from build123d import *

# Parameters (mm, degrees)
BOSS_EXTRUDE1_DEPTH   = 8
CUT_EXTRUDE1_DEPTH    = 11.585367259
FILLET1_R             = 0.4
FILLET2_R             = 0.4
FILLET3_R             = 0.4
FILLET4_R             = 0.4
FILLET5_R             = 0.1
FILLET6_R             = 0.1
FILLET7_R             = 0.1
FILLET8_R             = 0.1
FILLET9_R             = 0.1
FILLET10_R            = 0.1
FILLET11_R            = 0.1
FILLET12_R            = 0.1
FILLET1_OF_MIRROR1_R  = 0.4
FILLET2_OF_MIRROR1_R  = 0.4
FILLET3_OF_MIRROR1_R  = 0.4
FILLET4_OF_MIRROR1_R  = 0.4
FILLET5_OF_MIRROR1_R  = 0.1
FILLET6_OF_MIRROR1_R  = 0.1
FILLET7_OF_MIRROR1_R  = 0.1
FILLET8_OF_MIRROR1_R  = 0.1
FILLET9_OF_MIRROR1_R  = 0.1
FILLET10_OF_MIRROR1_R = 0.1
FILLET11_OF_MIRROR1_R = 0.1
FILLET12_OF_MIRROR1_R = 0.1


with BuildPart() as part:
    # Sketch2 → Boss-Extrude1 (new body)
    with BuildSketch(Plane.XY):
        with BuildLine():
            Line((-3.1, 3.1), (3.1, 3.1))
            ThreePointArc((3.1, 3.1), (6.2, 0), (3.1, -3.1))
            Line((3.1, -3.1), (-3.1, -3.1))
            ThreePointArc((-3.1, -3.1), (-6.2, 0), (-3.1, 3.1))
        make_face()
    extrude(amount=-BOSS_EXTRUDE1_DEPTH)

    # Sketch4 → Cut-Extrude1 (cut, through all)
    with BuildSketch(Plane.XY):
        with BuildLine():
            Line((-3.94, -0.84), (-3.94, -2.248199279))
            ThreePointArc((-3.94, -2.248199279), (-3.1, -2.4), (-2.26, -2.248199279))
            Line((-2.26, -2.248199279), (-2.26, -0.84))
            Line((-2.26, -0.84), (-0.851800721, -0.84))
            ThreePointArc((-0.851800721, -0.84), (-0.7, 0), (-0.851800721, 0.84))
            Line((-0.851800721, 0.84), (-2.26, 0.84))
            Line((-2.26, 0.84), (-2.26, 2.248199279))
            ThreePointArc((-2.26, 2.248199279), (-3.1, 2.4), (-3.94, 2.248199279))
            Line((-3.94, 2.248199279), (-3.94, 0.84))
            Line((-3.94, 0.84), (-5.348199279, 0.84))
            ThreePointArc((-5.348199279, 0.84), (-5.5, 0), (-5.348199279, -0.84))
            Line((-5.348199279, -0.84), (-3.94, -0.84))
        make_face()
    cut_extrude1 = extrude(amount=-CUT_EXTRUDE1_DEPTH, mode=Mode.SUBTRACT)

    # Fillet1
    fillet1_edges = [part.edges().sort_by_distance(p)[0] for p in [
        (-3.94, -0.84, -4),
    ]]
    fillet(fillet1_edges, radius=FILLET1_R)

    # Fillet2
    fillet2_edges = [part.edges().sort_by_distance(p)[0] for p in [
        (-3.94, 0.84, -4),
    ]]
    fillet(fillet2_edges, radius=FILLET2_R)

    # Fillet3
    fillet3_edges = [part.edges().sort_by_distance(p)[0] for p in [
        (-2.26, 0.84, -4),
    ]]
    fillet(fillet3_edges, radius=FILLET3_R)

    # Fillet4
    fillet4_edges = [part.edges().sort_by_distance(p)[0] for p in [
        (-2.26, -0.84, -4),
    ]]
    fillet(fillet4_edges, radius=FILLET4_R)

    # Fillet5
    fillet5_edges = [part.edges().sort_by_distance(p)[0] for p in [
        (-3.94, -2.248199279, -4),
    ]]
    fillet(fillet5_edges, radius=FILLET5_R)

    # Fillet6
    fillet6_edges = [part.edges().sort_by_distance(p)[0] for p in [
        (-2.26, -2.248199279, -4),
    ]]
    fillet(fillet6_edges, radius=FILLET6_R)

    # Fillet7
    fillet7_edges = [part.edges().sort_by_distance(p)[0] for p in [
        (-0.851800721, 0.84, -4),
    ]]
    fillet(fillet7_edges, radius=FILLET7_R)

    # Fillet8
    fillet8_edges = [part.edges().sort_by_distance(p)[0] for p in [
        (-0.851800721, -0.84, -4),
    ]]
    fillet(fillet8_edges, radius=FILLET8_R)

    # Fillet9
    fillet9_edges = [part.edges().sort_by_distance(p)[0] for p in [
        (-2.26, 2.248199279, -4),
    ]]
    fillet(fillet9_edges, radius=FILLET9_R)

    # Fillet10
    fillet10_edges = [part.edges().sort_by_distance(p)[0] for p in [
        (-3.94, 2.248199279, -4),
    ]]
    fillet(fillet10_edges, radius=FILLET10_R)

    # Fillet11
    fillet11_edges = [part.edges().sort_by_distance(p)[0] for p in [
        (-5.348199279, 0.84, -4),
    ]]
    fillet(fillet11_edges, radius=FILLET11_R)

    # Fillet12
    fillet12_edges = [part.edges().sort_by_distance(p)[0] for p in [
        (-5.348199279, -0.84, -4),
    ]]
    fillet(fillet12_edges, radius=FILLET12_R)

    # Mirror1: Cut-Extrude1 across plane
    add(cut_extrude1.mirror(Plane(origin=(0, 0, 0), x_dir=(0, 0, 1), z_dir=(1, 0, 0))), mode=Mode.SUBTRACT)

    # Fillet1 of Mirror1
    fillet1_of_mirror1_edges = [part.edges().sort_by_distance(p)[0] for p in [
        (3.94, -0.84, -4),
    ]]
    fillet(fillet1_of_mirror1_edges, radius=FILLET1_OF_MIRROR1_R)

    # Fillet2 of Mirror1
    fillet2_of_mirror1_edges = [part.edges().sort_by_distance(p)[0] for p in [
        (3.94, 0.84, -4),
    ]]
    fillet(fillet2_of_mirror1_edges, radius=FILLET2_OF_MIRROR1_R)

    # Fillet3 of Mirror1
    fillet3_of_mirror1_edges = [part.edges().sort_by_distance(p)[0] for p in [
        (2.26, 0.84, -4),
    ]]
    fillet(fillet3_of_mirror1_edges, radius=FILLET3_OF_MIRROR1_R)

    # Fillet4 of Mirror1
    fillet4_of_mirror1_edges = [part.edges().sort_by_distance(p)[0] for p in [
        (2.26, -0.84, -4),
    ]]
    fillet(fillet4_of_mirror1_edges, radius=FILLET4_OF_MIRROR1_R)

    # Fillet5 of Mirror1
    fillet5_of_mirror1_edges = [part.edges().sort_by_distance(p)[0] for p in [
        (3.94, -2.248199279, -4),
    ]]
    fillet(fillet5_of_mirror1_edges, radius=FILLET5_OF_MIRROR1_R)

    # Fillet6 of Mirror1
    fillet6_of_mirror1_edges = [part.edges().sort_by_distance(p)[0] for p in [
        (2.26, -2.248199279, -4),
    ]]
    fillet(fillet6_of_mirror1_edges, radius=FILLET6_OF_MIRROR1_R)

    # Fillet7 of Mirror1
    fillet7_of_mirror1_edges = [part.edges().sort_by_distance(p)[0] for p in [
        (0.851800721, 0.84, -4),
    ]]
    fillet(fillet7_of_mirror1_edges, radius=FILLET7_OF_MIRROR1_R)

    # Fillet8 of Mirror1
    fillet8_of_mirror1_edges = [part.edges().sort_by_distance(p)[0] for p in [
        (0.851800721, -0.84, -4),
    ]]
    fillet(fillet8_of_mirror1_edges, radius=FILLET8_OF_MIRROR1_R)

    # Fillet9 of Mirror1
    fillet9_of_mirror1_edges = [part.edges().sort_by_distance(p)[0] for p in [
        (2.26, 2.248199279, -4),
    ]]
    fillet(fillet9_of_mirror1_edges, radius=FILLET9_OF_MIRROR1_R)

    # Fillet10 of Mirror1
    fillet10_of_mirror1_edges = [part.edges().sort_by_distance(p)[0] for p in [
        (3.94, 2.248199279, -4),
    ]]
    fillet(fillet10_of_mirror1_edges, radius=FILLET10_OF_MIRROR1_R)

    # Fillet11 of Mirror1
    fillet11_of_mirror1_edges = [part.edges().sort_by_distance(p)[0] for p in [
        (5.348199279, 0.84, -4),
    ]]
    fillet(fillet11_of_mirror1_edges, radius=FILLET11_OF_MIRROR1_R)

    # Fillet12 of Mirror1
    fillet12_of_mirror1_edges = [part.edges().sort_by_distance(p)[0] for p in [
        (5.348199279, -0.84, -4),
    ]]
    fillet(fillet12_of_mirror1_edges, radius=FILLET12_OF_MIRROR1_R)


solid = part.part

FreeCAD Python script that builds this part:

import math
import FreeCAD as App
import Part
import Sketcher


def edges_at(feature, points):
    """Names of the edges that pass closest to the given points."""
    edges = feature.Shape.Edges
    near = lambda p: min(range(len(edges)), key=lambda i: edges[i].distToShape(Part.Vertex(*p))[0])
    return sorted({f"Edge{near(p) + 1}" for p in points})

doc = App.newDocument("Part")
body = doc.addObject("PartDesign::Body", "Body")

# Sketch on XY plane
sketch1 = body.newObject("Sketcher::SketchObject", "Sketch")
sketch1.AttachmentSupport = (doc.getObject("XY_Plane"), [""])
sketch1.MapMode = "FlatFace"
sketch1.addGeometry([
    Part.LineSegment(App.Vector(3.1, 3.1, 0), App.Vector(-3.1, 3.1, 0)),
    Part.ArcOfCircle(Part.Circle(App.Vector(-3.1, 0, 0), App.Vector(0, 0, 1), 3.1), math.radians(90), math.radians(270)),
    Part.LineSegment(App.Vector(-3.1, -3.1, 0), App.Vector(3.1, -3.1, 0)),
    Part.ArcOfCircle(Part.Circle(App.Vector(3.1, 0, 0), App.Vector(0, 0, 1), 3.1), math.radians(-90), math.radians(90)),
], False)
sketch1.addConstraint([
    Sketcher.Constraint("Tangent", 0, 2, 1, 1),
    Sketcher.Constraint("Tangent", 1, 2, 2, 1),
    Sketcher.Constraint("Tangent", 2, 2, 3, 1),
    Sketcher.Constraint("Tangent", 3, 2, 0, 1),
    Sketcher.Constraint("Horizontal", 0),
    Sketcher.Constraint("Horizontal", 2),
    Sketcher.Constraint("Symmetric", 1, 3, 3, 3, -1, 1),
    Sketcher.Constraint("Radius", 1, 3.1),
    Sketcher.Constraint("DistanceX", 0, 2, 0, 1, 6.2),
])
pad1 = body.newObject("PartDesign::Pad", "Pad")
pad1.Profile = sketch1
pad1.Length = 8
pad1.Reversed = True

# Sketch on XY plane
sketch2 = body.newObject("Sketcher::SketchObject", "Sketch001")
sketch2.AttachmentSupport = (doc.getObject("XY_Plane"), [""])
sketch2.MapMode = "FlatFace"
sketch2.addGeometry([
    Part.LineSegment(App.Vector(-3.9, -0.8, 0), App.Vector(-3.9, -2.2, 0)),  # 0
    Part.ArcOfCircle(Part.Circle(App.Vector(-3.1, 0, 0), App.Vector(0, 0, 1), 2.4), math.radians(-110), math.radians(-70)),  # 1
    Part.LineSegment(App.Vector(-2.3, -2.2, 0), App.Vector(-2.3, -0.8, 0)),  # 2
    Part.LineSegment(App.Vector(-2.3, -0.8, 0), App.Vector(-0.9, -0.8, 0)),  # 3
    Part.ArcOfCircle(Part.Circle(App.Vector(-3.1, 0, 0), App.Vector(0, 0, 1), 2.4), math.radians(-20), math.radians(20)),  # 4
    Part.LineSegment(App.Vector(-0.9, 0.8, 0), App.Vector(-2.3, 0.8, 0)),  # 5
    Part.LineSegment(App.Vector(-2.3, 0.8, 0), App.Vector(-2.3, 2.2, 0)),  # 6
    Part.ArcOfCircle(Part.Circle(App.Vector(-3.1, 0, 0), App.Vector(0, 0, 1), 2.4), math.radians(70), math.radians(110)),  # 7
    Part.LineSegment(App.Vector(-3.9, 2.2, 0), App.Vector(-3.9, 0.8, 0)),  # 8
    Part.LineSegment(App.Vector(-3.9, 0.8, 0), App.Vector(-5.3, 0.8, 0)),  # 9
    Part.ArcOfCircle(Part.Circle(App.Vector(-3.1, 0, 0), App.Vector(0, 0, 1), 2.4), math.radians(160), math.radians(200)),  # 10
    Part.LineSegment(App.Vector(-5.3, -0.8, 0), App.Vector(-3.9, -0.8, 0)),  # 11
], False)
sketch2.addConstraint([
    Sketcher.Constraint("Coincident", 0, 2, 1, 1),
    Sketcher.Constraint("Coincident", 1, 2, 2, 1),
    Sketcher.Constraint("Coincident", 2, 2, 3, 1),
    Sketcher.Constraint("Coincident", 3, 2, 4, 1),
    Sketcher.Constraint("Coincident", 4, 2, 5, 1),
    Sketcher.Constraint("Coincident", 5, 2, 6, 1),
    Sketcher.Constraint("Coincident", 6, 2, 7, 1),
    Sketcher.Constraint("Coincident", 7, 2, 8, 1),
    Sketcher.Constraint("Coincident", 8, 2, 9, 1),
    Sketcher.Constraint("Coincident", 9, 2, 10, 1),
    Sketcher.Constraint("Coincident", 10, 2, 11, 1),
    Sketcher.Constraint("Coincident", 11, 2, 0, 1),
    Sketcher.Constraint("Vertical", 0),
    Sketcher.Constraint("Vertical", 2),
    Sketcher.Constraint("Horizontal", 3),
    Sketcher.Constraint("Horizontal", 5),
    Sketcher.Constraint("Vertical", 6),
    Sketcher.Constraint("Vertical", 8),
    Sketcher.Constraint("Horizontal", 9),
    Sketcher.Constraint("Horizontal", 11),
    Sketcher.Constraint("Coincident", 4, 3, 1, 3),
    Sketcher.Constraint("Coincident", 7, 3, 1, 3),
    Sketcher.Constraint("Coincident", 10, 3, 1, 3),
    Sketcher.Constraint("Equal", 1, 4),
    Sketcher.Constraint("Equal", 4, 7),
    Sketcher.Constraint("Equal", 7, 10),
    Sketcher.Constraint("Symmetric", 3, 2, 4, 2, -1),
    Sketcher.Constraint("Symmetric", 8, 2, 11, 2, -1),
    Sketcher.Constraint("Horizontal", 0, 2, 1, 2),
    Sketcher.Constraint("Horizontal", 6, 2, 7, 2),
    Sketcher.Constraint("Horizontal", 5, 2, 8, 2),
    Sketcher.Constraint("Equal", 11, 0),
    Sketcher.Constraint("Radius", 1, 2.4),
    Sketcher.Constraint("DistanceX", 1, 3, -1, 1, 3.1),
    Sketcher.Constraint("DistanceX", 0, 2, -1, 1, 3.94),
])
pocket1 = body.newObject("PartDesign::Pocket", "Pocket")
pocket1.Profile = sketch2
pocket1.Type = "ThroughAll"
doc.recompute()

fillet = body.newObject("PartDesign::Fillet", "Fillet")
fillet.Base = (pocket1, edges_at(pocket1, [(-3.94, -0.84, -4)]))
fillet.Radius = 0.4
doc.recompute()

fillet2 = body.newObject("PartDesign::Fillet", "Fillet001")
fillet2.Base = (fillet, edges_at(fillet, [(-3.94, 0.84, -4)]))
fillet2.Radius = 0.4
doc.recompute()

fillet3 = body.newObject("PartDesign::Fillet", "Fillet002")
fillet3.Base = (fillet2, edges_at(fillet2, [(-2.26, 0.84, -4)]))
fillet3.Radius = 0.4
doc.recompute()

fillet4 = body.newObject("PartDesign::Fillet", "Fillet003")
fillet4.Base = (fillet3, edges_at(fillet3, [(-2.26, -0.84, -4)]))
fillet4.Radius = 0.4
doc.recompute()

fillet5 = body.newObject("PartDesign::Fillet", "Fillet004")
fillet5.Base = (fillet4, edges_at(fillet4, [(-3.94, -2.248, -4)]))
fillet5.Radius = 0.1
doc.recompute()

fillet6 = body.newObject("PartDesign::Fillet", "Fillet005")
fillet6.Base = (fillet5, edges_at(fillet5, [(-2.26, -2.248, -4)]))
fillet6.Radius = 0.1
doc.recompute()

fillet7 = body.newObject("PartDesign::Fillet", "Fillet006")
fillet7.Base = (fillet6, edges_at(fillet6, [(-0.852, 0.84, -4)]))
fillet7.Radius = 0.1
doc.recompute()

fillet8 = body.newObject("PartDesign::Fillet", "Fillet007")
fillet8.Base = (fillet7, edges_at(fillet7, [(-0.852, -0.84, -4)]))
fillet8.Radius = 0.1
doc.recompute()

fillet9 = body.newObject("PartDesign::Fillet", "Fillet008")
fillet9.Base = (fillet8, edges_at(fillet8, [(-2.26, 2.248, -4)]))
fillet9.Radius = 0.1
doc.recompute()

fillet10 = body.newObject("PartDesign::Fillet", "Fillet009")
fillet10.Base = (fillet9, edges_at(fillet9, [(-3.94, 2.248, -4)]))
fillet10.Radius = 0.1
doc.recompute()

fillet11 = body.newObject("PartDesign::Fillet", "Fillet010")
fillet11.Base = (fillet10, edges_at(fillet10, [(-5.348, 0.84, -4)]))
fillet11.Radius = 0.1
doc.recompute()

fillet12 = body.newObject("PartDesign::Fillet", "Fillet011")
fillet12.Base = (fillet11, edges_at(fillet11, [(-5.348, -0.84, -4)]))
fillet12.Radius = 0.1
doc.recompute()

mirrored = body.newObject("PartDesign::Mirrored", "Mirrored")
mirrored.Originals = [pocket1]
mirrored.MirrorPlane = (doc.getObject("YZ_Plane"), [""])
body.Tip = mirrored
doc.recompute()

fillet13 = body.newObject("PartDesign::Fillet", "Fillet012")
fillet13.Base = (mirrored, edges_at(mirrored, [(3.94, -0.84, -4)]))
fillet13.Radius = 0.4
doc.recompute()

fillet14 = body.newObject("PartDesign::Fillet", "Fillet013")
fillet14.Base = (fillet13, edges_at(fillet13, [(3.94, 0.84, -4)]))
fillet14.Radius = 0.4
doc.recompute()

fillet15 = body.newObject("PartDesign::Fillet", "Fillet014")
fillet15.Base = (fillet14, edges_at(fillet14, [(2.26, 0.84, -4)]))
fillet15.Radius = 0.4
doc.recompute()

fillet16 = body.newObject("PartDesign::Fillet", "Fillet015")
fillet16.Base = (fillet15, edges_at(fillet15, [(2.26, -0.84, -4)]))
fillet16.Radius = 0.4
doc.recompute()

fillet17 = body.newObject("PartDesign::Fillet", "Fillet016")
fillet17.Base = (fillet16, edges_at(fillet16, [(3.94, -2.248, -4)]))
fillet17.Radius = 0.1
doc.recompute()

fillet18 = body.newObject("PartDesign::Fillet", "Fillet017")
fillet18.Base = (fillet17, edges_at(fillet17, [(2.26, -2.248, -4)]))
fillet18.Radius = 0.1
doc.recompute()

fillet19 = body.newObject("PartDesign::Fillet", "Fillet018")
fillet19.Base = (fillet18, edges_at(fillet18, [(0.852, 0.84, -4)]))
fillet19.Radius = 0.1
doc.recompute()

fillet20 = body.newObject("PartDesign::Fillet", "Fillet019")
fillet20.Base = (fillet19, edges_at(fillet19, [(0.852, -0.84, -4)]))
fillet20.Radius = 0.1
doc.recompute()

fillet21 = body.newObject("PartDesign::Fillet", "Fillet020")
fillet21.Base = (fillet20, edges_at(fillet20, [(2.26, 2.248, -4)]))
fillet21.Radius = 0.1
doc.recompute()

fillet22 = body.newObject("PartDesign::Fillet", "Fillet021")
fillet22.Base = (fillet21, edges_at(fillet21, [(3.94, 2.248, -4)]))
fillet22.Radius = 0.1
doc.recompute()

fillet23 = body.newObject("PartDesign::Fillet", "Fillet022")
fillet23.Base = (fillet22, edges_at(fillet22, [(5.348, 0.84, -4)]))
fillet23.Radius = 0.1
doc.recompute()

fillet24 = body.newObject("PartDesign::Fillet", "Fillet023")
fillet24.Base = (fillet23, edges_at(fillet23, [(5.348, -0.84, -4)]))
fillet24.Radius = 0.1

doc.recompute()
